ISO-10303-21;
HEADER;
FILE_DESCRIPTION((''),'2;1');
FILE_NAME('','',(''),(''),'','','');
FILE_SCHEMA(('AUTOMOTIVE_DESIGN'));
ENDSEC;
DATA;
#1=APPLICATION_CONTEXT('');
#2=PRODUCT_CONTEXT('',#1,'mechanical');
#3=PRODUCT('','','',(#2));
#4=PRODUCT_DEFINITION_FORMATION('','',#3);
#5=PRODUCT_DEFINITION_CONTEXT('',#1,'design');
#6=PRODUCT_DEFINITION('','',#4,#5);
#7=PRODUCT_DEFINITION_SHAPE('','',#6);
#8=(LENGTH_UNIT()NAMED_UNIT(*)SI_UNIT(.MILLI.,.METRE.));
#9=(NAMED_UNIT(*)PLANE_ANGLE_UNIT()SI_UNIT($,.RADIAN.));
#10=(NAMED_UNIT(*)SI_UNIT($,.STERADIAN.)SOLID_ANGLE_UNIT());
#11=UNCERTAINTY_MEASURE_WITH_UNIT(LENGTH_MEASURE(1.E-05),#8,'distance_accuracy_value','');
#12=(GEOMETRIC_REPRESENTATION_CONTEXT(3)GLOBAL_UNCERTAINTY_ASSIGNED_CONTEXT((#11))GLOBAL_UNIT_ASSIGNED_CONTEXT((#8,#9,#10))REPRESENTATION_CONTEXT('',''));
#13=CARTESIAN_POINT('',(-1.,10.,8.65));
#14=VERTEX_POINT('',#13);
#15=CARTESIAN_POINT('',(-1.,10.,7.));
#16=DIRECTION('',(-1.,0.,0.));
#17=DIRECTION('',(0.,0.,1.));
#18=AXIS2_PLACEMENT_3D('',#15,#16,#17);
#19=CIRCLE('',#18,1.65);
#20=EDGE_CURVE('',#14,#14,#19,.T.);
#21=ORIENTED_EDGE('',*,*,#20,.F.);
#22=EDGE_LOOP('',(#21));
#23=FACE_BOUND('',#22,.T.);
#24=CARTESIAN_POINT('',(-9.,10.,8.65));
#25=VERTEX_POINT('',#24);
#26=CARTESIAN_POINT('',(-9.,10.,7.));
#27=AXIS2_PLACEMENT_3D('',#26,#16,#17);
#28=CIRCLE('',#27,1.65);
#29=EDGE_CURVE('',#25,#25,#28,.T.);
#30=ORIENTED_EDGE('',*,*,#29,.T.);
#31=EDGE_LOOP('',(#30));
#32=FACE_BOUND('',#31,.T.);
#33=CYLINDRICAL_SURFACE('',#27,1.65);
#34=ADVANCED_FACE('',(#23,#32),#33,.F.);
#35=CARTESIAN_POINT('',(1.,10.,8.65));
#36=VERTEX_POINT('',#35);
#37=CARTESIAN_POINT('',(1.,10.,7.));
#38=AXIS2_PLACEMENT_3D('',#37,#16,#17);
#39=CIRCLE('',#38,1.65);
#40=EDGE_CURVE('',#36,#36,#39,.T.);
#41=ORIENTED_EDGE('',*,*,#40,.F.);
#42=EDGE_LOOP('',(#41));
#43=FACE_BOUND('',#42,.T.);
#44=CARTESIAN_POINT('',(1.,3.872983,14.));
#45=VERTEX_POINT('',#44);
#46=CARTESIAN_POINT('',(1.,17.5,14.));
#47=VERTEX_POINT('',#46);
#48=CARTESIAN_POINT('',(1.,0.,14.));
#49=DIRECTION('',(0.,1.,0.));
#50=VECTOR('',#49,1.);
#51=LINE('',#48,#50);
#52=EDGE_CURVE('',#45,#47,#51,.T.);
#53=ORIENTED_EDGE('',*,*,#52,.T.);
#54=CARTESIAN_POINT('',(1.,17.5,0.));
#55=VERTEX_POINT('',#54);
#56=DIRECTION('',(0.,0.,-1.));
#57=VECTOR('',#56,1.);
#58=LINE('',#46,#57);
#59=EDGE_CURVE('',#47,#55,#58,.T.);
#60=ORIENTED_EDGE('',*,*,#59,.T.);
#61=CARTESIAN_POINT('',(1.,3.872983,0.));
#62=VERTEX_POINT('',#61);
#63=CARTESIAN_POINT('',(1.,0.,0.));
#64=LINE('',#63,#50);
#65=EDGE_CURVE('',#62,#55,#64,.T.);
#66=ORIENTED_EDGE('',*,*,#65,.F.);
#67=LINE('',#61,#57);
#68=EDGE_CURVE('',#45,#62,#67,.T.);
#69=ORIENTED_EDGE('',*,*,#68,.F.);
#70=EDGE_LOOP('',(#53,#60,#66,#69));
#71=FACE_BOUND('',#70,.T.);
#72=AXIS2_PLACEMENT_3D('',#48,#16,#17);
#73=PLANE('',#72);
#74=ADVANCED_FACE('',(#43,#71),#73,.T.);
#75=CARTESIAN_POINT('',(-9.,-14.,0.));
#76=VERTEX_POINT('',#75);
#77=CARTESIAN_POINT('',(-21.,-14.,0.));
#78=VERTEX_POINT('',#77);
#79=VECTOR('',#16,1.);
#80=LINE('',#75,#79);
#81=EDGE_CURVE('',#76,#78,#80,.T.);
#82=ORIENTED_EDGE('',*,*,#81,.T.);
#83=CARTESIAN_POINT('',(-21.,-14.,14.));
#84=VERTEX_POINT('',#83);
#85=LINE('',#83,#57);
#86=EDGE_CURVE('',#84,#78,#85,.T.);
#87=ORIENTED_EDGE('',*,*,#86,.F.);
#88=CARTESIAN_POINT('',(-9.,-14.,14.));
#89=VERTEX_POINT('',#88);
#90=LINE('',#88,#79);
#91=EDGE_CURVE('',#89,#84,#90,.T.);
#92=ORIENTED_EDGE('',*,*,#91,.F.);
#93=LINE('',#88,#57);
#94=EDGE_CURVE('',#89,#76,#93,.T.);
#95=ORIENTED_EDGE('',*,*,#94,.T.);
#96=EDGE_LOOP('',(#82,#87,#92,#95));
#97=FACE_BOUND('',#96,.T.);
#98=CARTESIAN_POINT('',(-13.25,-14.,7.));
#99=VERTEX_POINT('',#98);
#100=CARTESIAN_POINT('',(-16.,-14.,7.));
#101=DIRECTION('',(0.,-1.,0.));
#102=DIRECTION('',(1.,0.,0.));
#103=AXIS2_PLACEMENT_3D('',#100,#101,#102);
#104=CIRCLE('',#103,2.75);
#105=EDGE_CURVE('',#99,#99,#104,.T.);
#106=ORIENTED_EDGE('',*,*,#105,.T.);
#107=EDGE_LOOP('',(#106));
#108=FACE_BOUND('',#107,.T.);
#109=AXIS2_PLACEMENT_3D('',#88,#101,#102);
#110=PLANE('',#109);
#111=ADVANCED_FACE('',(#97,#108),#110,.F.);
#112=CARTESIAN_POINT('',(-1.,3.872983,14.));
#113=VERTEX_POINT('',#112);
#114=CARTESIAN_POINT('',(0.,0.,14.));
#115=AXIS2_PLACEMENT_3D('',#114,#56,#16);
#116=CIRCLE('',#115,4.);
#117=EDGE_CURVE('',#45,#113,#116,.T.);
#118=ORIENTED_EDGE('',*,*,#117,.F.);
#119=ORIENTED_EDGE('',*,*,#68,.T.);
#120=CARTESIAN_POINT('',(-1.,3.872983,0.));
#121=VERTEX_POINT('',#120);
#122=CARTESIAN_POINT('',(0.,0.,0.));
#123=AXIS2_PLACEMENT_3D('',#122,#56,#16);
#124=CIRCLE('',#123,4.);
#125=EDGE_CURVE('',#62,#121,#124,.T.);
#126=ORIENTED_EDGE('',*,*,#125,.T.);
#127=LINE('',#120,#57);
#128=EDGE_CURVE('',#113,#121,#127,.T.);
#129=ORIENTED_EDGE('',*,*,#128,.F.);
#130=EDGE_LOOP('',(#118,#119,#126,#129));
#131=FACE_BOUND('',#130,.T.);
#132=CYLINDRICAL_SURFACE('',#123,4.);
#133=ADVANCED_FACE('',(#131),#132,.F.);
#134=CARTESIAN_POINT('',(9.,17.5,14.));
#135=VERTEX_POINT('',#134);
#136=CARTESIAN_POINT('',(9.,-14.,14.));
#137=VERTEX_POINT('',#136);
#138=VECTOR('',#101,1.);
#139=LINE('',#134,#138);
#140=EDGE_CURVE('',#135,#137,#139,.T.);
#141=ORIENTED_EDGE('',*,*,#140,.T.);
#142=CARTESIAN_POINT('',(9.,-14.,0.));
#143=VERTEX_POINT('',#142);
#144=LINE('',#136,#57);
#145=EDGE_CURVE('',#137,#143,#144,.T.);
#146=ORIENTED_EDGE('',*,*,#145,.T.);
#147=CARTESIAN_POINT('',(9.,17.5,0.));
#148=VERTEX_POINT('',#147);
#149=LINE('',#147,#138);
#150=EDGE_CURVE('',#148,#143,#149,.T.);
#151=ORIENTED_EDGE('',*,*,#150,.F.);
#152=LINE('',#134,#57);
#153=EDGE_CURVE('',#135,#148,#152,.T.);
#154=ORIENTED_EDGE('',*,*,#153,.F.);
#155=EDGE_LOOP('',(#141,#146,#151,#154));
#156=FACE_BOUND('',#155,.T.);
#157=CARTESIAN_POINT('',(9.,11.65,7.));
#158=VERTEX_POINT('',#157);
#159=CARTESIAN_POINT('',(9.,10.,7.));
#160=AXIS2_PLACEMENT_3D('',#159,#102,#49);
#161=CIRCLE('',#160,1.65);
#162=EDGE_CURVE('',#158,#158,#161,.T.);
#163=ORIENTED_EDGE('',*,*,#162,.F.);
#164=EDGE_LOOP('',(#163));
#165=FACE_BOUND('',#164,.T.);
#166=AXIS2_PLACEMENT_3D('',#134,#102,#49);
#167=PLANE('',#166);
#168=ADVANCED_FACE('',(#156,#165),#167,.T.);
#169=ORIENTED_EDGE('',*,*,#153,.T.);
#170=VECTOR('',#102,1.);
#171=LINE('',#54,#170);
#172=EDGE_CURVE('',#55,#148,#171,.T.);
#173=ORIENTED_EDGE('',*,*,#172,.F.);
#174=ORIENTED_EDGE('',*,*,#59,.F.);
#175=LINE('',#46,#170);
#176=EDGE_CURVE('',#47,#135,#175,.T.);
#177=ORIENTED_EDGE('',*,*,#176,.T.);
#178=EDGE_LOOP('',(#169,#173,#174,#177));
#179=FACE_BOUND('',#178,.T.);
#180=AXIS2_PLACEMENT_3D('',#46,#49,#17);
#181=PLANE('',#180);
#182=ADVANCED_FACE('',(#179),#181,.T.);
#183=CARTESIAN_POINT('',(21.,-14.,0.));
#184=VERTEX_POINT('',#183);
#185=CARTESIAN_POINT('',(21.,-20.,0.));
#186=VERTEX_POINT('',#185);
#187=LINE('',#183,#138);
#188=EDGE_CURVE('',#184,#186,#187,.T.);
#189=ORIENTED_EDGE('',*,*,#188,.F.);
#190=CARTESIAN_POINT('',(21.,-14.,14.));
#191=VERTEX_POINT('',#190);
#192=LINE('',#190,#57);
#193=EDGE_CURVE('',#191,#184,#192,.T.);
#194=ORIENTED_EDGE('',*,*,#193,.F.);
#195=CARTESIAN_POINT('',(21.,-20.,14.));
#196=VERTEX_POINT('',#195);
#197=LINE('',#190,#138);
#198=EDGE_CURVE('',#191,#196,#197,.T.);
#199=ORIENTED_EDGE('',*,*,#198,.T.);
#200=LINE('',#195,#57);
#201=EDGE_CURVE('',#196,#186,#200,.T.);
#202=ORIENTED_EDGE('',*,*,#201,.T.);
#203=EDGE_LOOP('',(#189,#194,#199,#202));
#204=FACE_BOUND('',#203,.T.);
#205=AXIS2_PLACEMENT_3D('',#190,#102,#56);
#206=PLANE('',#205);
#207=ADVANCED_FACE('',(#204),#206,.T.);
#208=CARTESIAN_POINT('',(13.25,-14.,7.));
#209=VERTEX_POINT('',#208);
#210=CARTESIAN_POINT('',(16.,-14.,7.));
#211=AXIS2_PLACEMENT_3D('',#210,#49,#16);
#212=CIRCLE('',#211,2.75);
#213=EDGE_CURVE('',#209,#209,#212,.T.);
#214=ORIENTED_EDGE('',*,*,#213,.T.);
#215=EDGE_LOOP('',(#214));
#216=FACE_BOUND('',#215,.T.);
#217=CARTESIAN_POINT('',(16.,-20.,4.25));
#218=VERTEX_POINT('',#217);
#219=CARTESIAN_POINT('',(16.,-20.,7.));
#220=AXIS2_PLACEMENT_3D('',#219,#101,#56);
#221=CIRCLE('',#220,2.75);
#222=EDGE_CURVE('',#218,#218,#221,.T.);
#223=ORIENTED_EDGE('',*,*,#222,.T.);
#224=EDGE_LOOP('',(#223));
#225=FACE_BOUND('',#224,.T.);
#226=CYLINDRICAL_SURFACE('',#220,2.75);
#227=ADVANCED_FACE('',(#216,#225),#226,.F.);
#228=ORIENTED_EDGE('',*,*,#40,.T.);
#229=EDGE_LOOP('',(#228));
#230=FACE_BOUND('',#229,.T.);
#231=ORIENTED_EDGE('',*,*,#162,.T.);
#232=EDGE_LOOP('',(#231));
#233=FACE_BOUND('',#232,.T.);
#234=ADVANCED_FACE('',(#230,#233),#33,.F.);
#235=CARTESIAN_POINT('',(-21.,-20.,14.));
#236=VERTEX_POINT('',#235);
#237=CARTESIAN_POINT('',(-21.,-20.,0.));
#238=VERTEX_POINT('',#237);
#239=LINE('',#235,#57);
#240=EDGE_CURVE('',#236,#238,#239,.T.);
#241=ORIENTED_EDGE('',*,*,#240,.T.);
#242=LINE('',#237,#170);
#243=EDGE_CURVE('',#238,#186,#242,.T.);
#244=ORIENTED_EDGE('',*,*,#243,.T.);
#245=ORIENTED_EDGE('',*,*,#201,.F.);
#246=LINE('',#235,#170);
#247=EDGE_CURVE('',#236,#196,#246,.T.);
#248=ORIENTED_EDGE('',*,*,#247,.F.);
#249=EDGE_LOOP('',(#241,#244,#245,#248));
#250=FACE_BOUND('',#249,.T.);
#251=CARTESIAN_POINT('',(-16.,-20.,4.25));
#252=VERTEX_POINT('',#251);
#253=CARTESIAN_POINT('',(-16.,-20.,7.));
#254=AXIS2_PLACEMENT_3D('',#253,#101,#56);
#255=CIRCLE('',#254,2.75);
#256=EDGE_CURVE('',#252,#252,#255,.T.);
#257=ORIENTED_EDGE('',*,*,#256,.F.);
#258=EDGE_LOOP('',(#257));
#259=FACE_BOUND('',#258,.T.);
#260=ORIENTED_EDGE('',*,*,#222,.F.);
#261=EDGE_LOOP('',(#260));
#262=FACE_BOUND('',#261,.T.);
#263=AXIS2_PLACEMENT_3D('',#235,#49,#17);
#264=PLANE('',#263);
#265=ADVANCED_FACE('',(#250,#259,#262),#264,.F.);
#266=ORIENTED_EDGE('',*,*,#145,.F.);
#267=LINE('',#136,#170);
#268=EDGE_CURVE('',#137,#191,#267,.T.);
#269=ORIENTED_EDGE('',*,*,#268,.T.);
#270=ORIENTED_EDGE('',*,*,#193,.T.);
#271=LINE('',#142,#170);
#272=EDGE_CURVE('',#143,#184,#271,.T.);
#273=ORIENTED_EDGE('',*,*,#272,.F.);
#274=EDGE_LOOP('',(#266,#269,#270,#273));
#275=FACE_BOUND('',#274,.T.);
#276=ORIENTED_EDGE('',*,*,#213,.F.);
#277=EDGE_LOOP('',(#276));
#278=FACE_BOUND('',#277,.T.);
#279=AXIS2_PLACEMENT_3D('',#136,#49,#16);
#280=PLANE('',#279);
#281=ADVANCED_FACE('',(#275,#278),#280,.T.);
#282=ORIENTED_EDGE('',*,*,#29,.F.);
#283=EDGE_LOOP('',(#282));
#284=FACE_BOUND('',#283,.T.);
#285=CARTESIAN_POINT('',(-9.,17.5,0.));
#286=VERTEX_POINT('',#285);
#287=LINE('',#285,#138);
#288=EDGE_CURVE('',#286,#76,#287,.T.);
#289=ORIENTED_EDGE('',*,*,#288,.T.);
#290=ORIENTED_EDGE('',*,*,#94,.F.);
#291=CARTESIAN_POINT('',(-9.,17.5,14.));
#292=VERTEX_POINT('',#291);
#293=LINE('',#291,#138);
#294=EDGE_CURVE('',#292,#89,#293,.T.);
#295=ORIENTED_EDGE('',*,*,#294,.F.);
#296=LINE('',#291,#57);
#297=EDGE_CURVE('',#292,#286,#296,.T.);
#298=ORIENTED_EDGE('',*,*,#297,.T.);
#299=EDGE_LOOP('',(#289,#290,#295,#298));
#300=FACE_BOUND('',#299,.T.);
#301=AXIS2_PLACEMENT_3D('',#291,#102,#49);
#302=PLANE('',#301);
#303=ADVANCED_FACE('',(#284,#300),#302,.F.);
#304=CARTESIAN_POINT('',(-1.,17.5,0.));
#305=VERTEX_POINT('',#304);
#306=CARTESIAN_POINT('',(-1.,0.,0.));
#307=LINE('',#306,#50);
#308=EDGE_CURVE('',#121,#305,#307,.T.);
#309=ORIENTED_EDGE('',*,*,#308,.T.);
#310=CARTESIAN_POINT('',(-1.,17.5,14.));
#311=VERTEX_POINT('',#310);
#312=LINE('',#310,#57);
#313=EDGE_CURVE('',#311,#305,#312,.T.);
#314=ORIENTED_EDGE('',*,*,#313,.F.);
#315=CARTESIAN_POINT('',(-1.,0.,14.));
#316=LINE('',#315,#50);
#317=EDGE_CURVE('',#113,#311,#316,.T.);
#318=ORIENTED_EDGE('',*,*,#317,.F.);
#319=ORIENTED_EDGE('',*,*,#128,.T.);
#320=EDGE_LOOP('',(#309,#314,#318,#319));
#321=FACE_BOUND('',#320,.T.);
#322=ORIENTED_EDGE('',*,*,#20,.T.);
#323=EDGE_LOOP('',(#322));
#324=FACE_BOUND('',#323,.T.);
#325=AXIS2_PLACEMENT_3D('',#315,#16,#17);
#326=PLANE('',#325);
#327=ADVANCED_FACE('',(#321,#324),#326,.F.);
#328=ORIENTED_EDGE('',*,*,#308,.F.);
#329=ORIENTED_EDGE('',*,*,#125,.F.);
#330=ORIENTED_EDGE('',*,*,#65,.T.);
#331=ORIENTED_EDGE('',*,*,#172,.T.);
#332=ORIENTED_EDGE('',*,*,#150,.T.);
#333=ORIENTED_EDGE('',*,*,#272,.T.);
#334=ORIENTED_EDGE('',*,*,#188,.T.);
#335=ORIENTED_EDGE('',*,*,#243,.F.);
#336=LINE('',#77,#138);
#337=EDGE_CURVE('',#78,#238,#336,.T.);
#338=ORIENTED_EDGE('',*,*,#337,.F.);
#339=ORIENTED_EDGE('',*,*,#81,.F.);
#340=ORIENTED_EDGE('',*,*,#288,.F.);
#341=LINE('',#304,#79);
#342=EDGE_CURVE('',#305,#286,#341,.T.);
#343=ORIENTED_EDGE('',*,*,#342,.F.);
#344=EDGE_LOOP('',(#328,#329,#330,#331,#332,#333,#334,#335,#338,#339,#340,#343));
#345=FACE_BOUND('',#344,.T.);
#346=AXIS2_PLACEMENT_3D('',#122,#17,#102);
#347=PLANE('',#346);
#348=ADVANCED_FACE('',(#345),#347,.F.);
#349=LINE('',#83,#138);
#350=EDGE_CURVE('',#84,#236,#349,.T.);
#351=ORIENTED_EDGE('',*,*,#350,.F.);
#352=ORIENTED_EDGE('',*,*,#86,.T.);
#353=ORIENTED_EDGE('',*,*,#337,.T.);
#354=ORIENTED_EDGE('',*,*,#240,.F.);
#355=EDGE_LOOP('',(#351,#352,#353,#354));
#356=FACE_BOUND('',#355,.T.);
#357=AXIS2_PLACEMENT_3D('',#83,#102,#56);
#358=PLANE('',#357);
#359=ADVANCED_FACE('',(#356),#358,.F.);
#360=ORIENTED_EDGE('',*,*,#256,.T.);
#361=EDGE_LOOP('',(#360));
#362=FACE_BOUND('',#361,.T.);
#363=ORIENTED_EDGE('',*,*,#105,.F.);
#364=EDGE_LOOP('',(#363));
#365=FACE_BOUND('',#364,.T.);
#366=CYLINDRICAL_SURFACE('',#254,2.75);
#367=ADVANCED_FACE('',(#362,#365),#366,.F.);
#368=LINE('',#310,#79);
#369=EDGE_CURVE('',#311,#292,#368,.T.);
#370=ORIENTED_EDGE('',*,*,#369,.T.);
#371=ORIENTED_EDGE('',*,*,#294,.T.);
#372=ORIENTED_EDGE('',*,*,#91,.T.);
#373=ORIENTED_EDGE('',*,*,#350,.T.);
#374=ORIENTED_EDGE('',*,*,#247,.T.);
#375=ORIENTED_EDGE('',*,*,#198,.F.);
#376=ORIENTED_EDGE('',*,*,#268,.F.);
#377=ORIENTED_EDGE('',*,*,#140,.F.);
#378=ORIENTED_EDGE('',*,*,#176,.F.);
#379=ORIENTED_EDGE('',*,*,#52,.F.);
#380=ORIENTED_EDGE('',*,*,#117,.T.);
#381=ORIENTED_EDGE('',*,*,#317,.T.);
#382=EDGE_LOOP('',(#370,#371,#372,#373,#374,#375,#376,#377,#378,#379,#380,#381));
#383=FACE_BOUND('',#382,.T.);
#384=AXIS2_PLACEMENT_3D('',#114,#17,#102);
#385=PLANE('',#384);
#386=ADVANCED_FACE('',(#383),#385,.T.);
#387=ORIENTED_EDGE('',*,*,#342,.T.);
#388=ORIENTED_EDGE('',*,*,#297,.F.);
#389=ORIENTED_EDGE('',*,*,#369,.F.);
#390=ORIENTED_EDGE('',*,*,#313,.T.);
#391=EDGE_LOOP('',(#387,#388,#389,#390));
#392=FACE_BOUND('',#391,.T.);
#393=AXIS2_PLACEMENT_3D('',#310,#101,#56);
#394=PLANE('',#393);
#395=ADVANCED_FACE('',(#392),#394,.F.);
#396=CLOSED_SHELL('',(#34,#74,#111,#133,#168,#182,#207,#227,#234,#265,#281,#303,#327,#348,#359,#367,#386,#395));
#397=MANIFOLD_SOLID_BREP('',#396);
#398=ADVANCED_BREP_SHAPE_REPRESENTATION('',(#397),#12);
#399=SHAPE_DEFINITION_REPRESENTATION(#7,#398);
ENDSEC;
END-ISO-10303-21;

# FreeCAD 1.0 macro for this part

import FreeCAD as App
import Part
import Sketcher

V = App.Vector

doc = App.newDocument("Part")
body = doc.addObject("PartDesign::Body", "Body")

# Sketch on XY plane
sketch1 = doc.addObject("Sketcher::SketchObject", "Sketch")
body.addObject(sketch1)
sketch1.AttachmentSupport = (doc.XY_Plane, [""])
sketch1.MapMode = "FlatFace"
sketch1.addGeometry([
    Part.LineSegment(V(-1, 0, 0), V(-1, 17.5, 0)),  # 0
    Part.LineSegment(V(-1, 17.5, 0), V(-9, 17.5, 0)),  # 1
    Part.LineSegment(V(-9, 17.5, 0), V(-9, -14, 0)),  # 2
    Part.LineSegment(V(-9, -14, 0), V(-21, -14, 0)),  # 3
    Part.LineSegment(V(-21, -14, 0), V(-21, -20, 0)),  # 4
    Part.LineSegment(V(-21, -20, 0), V(0, -20, 0)),  # 5
    Part.LineSegment(V(0, -20, 0), V(0, 0, 0)),  # 6
    Part.LineSegment(V(0, 0, 0), V(-1, 0, 0)),  # 7
], False)
sketch1.addConstraint([
    Sketcher.Constraint("Coincident", 0, 2, 1, 1),
    Sketcher.Constraint("Coincident", 1, 2, 2, 1),
    Sketcher.Constraint("Coincident", 2, 2, 3, 1),
    Sketcher.Constraint("Coincident", 3, 2, 4, 1),
    Sketcher.Constraint("Coincident", 4, 2, 5, 1),
    Sketcher.Constraint("Coincident", 5, 2, 6, 1),
    Sketcher.Constraint("Coincident", 6, 2, 7, 1),
    Sketcher.Constraint("Coincident", 7, 2, 0, 1),
    Sketcher.Constraint("Vertical", 0),
    Sketcher.Constraint("Horizontal", 1),
    Sketcher.Constraint("Vertical", 2),
    Sketcher.Constraint("Horizontal", 3),
    Sketcher.Constraint("Vertical", 4),
    Sketcher.Constraint("Horizontal", 5),
    Sketcher.Constraint("Vertical", 6),
    Sketcher.Constraint("Horizontal", 7),
    Sketcher.Constraint("Coincident", 6, 2, -1, 1),
    Sketcher.Constraint("DistanceX", 1, 2, 1, 1, 8.0),
    Sketcher.Constraint("DistanceX", 3, 2, 3, 1, 12.0),
    Sketcher.Constraint("DistanceX", 5, 1, 5, 2, 21.0),
    Sketcher.Constraint("DistanceY", 4, 2, 4, 1, 6.0),
    Sketcher.Constraint("DistanceY", 6, 1, 6, 2, 20.0),
    Sketcher.Constraint("DistanceY", 0, 1, 0, 2, 17.5),
])
pad1 = doc.addObject("PartDesign::Pad", "Pad")
body.addObject(pad1)
pad1.Profile = sketch1
pad1.Length = 14
doc.recompute()

mirrored = doc.addObject("PartDesign::Mirrored", "Mirrored")
body.addObject(mirrored)
mirrored.Originals = [pad1]
mirrored.MirrorPlane = (doc.YZ_Plane, [""])
body.Tip = mirrored

# Sketch on YZ plane
sketch2 = doc.addObject("Sketcher::SketchObject", "Sketch001")
body.addObject(sketch2)
sketch2.AttachmentSupport = (doc.YZ_Plane, [""])
sketch2.MapMode = "FlatFace"
sketch2.AttachmentOffset = App.Placement(V(0, 0, -9), App.Rotation())
sketch2.addGeometry(Part.Circle(V(10, 7, 0), V(0, 0, 1), 1.6), False)
sketch2.addConstraint([
    Sketcher.Constraint("Diameter", 0, 3.3),
    Sketcher.Constraint("DistanceX", -1, 1, 0, 3, 10.0),
    Sketcher.Constraint("DistanceY", -1, 1, 0, 3, 7.0),
])
doc.recompute()
hole = doc.addObject("PartDesign::Hole", "Hole")
body.addObject(hole)
hole.Profile = sketch2
hole.ThreadType = "None"
hole.Diameter = 3.3
hole.DepthType = "ThroughAll"
hole.Reversed = True

# Sketch on XY plane
sketch3 = doc.addObject("Sketcher::SketchObject", "Sketch002")
body.addObject(sketch3)
sketch3.AttachmentSupport = (doc.XY_Plane, [""])
sketch3.MapMode = "FlatFace"
sketch3.addGeometry(Part.Circle(V(0, 0, 0), V(0, 0, 1), 4), False)
sketch3.addConstraint([
    Sketcher.Constraint("Coincident", 0, 3, -1, 1),
    Sketcher.Constraint("Diameter", 0, 8.0),
])
doc.recompute()
hole2 = doc.addObject("PartDesign::Hole", "Hole001")
body.addObject(hole2)
hole2.Profile = sketch3
hole2.ThreadType = "None"
hole2.Diameter = 8
hole2.DepthType = "ThroughAll"
hole2.Reversed = True

# Sketch on XZ plane
sketch4 = doc.addObject("Sketcher::SketchObject", "Sketch003")
body.addObject(sketch4)
sketch4.AttachmentSupport = (doc.XZ_Plane, [""])
sketch4.MapMode = "FlatFace"
sketch4.AttachmentOffset = App.Placement(V(0, 0, 20), App.Rotation())
sketch4.addGeometry([
    Part.Circle(V(16, 7, 0), V(0, 0, 1), 2.8),
    Part.Circle(V(-16, 7, 0), V(0, 0, 1), 2.8),
], False)
sketch4.addConstraint([
    Sketcher.Constraint("Equal", 0, 1),
    Sketcher.Constraint("Symmetric", 0, 3, 1, 3, -2),
    Sketcher.Constraint("Diameter", 0, 5.5),
    Sketcher.Constraint("DistanceX", -1, 1, 0, 3, 16.0),
    Sketcher.Constraint("DistanceY", -1, 1, 0, 3, 7.0),
])
doc.recompute()
hole3 = doc.addObject("PartDesign::Hole", "Hole002")
body.addObject(hole3)
hole3.Profile = sketch4
hole3.ThreadType = "None"
hole3.Diameter = 5.5
hole3.DepthType = "ThroughAll"

doc.recompute()
